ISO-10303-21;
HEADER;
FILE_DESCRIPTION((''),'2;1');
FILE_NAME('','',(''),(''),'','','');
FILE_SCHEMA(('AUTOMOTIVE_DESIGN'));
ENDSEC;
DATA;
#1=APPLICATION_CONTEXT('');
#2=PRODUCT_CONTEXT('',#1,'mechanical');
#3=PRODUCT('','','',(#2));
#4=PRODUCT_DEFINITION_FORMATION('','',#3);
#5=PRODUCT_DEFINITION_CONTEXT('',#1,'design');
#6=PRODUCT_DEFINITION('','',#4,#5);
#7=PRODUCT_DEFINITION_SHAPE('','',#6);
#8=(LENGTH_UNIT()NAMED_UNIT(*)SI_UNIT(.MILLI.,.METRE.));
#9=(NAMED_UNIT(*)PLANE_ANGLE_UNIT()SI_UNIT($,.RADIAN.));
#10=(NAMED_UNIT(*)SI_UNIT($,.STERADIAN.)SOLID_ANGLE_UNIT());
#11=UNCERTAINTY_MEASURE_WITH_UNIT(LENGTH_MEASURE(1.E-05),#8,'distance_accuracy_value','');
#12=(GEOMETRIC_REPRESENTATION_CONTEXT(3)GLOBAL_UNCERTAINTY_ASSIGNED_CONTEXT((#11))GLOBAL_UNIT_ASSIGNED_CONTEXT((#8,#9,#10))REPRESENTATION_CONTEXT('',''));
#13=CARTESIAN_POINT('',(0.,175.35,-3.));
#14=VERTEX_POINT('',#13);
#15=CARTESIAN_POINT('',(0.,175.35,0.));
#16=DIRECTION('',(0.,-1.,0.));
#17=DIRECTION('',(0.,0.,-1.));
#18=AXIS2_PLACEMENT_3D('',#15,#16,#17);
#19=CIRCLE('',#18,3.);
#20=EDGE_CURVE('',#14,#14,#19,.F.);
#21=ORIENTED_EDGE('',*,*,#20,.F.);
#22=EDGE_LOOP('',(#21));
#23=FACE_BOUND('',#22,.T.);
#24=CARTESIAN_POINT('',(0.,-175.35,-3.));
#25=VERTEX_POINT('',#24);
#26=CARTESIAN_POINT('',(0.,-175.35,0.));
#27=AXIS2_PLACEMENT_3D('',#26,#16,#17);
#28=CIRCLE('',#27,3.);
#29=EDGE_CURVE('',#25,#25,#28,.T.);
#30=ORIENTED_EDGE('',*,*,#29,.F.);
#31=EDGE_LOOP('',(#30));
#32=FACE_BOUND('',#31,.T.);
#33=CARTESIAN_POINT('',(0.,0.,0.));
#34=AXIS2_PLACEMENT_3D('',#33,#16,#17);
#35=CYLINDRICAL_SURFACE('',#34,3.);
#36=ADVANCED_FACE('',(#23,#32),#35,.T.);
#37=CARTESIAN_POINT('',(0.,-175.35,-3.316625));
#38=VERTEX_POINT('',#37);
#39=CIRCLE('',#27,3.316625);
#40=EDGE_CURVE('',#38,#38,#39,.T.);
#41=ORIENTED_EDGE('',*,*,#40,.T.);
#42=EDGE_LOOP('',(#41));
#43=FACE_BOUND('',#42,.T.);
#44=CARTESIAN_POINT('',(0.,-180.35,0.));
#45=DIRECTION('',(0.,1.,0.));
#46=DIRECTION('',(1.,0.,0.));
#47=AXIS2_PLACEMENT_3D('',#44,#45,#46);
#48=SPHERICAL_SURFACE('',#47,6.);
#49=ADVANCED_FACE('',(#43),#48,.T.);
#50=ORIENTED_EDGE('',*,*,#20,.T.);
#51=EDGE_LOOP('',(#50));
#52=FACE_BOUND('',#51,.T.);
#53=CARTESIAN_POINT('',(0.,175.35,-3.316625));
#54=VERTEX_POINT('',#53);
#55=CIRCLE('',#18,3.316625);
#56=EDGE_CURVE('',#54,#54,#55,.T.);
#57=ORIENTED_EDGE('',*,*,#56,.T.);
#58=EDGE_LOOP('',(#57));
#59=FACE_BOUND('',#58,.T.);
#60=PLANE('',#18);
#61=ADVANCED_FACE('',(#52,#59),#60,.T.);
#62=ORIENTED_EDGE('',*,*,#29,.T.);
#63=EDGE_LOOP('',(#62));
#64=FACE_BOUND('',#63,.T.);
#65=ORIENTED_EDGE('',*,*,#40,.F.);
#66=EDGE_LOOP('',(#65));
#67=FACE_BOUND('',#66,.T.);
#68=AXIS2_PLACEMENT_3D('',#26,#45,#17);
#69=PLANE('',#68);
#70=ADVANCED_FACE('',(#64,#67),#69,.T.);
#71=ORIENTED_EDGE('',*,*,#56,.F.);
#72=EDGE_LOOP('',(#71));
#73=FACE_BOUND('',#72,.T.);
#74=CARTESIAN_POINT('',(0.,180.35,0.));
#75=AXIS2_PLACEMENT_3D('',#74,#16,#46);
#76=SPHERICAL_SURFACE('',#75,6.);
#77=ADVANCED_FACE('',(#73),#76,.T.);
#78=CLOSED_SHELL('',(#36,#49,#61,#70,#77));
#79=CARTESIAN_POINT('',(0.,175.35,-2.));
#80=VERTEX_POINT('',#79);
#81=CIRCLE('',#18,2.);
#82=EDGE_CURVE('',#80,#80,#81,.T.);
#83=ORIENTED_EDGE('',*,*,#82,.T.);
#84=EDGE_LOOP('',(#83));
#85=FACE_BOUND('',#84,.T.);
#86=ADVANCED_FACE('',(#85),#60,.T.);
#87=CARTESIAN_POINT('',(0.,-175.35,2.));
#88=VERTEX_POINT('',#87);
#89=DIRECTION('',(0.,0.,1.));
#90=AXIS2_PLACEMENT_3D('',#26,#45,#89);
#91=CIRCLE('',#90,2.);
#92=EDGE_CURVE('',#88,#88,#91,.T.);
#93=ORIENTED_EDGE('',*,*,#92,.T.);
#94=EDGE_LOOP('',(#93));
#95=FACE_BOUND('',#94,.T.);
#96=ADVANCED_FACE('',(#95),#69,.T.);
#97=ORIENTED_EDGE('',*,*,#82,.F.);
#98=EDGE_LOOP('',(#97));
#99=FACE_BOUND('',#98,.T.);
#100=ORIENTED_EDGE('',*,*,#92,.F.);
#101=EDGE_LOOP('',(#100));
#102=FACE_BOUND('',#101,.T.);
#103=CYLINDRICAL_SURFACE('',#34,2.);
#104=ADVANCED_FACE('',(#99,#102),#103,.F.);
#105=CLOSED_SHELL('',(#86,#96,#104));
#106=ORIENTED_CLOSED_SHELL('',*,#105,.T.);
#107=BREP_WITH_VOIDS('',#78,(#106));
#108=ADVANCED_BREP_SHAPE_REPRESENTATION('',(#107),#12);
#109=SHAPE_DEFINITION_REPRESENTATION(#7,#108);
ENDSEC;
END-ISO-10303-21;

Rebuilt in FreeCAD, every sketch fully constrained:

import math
import FreeCAD as App
import Part
import Sketcher
from FreeCAD import Vector
Q = App.Units.Quantity

doc = App.newDocument("Part")
body = doc.addObject("PartDesign::Body", "Body")

sketch1 = body.newObject("Sketcher::SketchObject", "Sketch")
sketch1.AttachmentSupport = (doc.getObject("XY_Plane"), [""])
sketch1.MapMode = "FlatFace"
sketch1.addGeometry([
    Part.LineSegment(Vector(2, 175.35, 0), Vector(2, -175.35, 0)),
    Part.LineSegment(Vector(2, -175.35, 0), Vector(3, -175.35, 0)),
    Part.LineSegment(Vector(3, -175.35, 0), Vector(3, 175.35, 0)),
    Part.LineSegment(Vector(3, 175.35, 0), Vector(2, 175.35, 0)),
], False)
sketch1.addConstraint([
    Sketcher.Constraint("Coincident", 0, 2, 1, 1),
    Sketcher.Constraint("Coincident", 1, 2, 2, 1),
    Sketcher.Constraint("Coincident", 2, 2, 3, 1),
    Sketcher.Constraint("Coincident", 3, 2, 0, 1),
    Sketcher.Constraint("Vertical", 0),
    Sketcher.Constraint("Horizontal", 1),
    Sketcher.Constraint("Vertical", 2),
    Sketcher.Constraint("Horizontal", 3),
    Sketcher.Constraint("DistanceX", 1, 1, 1, 2, Q("1 mm")),
    Sketcher.Constraint("DistanceY", 0, 2, 0, 1, Q("350.7 mm")),
    Sketcher.Constraint("DistanceX", -1, 1, 0, 2, Q("2 mm")),
    Sketcher.Constraint("DistanceY", 0, 2, -1, 1, Q("175.35 mm")),
])
revolution = body.newObject("PartDesign::Revolution", "Revolution")
revolution.Profile = sketch1
revolution.ReferenceAxis = (sketch1, ["V_Axis"])
revolution.Angle = 360

sketch2 = body.newObject("Sketcher::SketchObject", "Sketch001")
sketch2.AttachmentSupport = (doc.getObject("XY_Plane"), [""])
sketch2.MapMode = "FlatFace"
sketch2.addGeometry([
    Part.LineSegment(Vector(0, 186.35, 0), Vector(0, 175.35, 0)),
    Part.LineSegment(Vector(0, 175.35, 0), Vector(3.316625, 175.35, 0)),
    Part.ArcOfCircle(Part.Circle(Vector(0, 180.35, 0), Vector(0, 0, 1), 6), math.radians(-56.44269), math.radians(90)),
], False)
sketch2.addConstraint([
    Sketcher.Constraint("Coincident", 0, 2, 1, 1),
    Sketcher.Constraint("Coincident", 1, 2, 2, 1),
    Sketcher.Constraint("Coincident", 2, 2, 0, 1),
    Sketcher.Constraint("Vertical", 0),
    Sketcher.Constraint("Horizontal", 1),
    Sketcher.Constraint("PointOnObject", 2, 3, -2),
    Sketcher.Constraint("PointOnObject", 0, 2, -2),
    Sketcher.Constraint("Radius", 2, Q("6 mm")),
    Sketcher.Constraint("DistanceY", 0, 2, 0, 1, Q("11 mm")),
    Sketcher.Constraint("DistanceY", -1, 1, 2, 3, Q("180.35 mm")),
])
revolution2 = body.newObject("PartDesign::Revolution", "Revolution001")
revolution2.Profile = sketch2
revolution2.ReferenceAxis = (sketch2, ["V_Axis"])
revolution2.Angle = 360
doc.recompute()

mirrored = body.newObject("PartDesign::Mirrored", "Mirrored")
mirrored.Originals = [revolution2]
mirrored.MirrorPlane = (doc.getObject("XZ_Plane"), [""])
body.Tip = mirrored

doc.recompute()
